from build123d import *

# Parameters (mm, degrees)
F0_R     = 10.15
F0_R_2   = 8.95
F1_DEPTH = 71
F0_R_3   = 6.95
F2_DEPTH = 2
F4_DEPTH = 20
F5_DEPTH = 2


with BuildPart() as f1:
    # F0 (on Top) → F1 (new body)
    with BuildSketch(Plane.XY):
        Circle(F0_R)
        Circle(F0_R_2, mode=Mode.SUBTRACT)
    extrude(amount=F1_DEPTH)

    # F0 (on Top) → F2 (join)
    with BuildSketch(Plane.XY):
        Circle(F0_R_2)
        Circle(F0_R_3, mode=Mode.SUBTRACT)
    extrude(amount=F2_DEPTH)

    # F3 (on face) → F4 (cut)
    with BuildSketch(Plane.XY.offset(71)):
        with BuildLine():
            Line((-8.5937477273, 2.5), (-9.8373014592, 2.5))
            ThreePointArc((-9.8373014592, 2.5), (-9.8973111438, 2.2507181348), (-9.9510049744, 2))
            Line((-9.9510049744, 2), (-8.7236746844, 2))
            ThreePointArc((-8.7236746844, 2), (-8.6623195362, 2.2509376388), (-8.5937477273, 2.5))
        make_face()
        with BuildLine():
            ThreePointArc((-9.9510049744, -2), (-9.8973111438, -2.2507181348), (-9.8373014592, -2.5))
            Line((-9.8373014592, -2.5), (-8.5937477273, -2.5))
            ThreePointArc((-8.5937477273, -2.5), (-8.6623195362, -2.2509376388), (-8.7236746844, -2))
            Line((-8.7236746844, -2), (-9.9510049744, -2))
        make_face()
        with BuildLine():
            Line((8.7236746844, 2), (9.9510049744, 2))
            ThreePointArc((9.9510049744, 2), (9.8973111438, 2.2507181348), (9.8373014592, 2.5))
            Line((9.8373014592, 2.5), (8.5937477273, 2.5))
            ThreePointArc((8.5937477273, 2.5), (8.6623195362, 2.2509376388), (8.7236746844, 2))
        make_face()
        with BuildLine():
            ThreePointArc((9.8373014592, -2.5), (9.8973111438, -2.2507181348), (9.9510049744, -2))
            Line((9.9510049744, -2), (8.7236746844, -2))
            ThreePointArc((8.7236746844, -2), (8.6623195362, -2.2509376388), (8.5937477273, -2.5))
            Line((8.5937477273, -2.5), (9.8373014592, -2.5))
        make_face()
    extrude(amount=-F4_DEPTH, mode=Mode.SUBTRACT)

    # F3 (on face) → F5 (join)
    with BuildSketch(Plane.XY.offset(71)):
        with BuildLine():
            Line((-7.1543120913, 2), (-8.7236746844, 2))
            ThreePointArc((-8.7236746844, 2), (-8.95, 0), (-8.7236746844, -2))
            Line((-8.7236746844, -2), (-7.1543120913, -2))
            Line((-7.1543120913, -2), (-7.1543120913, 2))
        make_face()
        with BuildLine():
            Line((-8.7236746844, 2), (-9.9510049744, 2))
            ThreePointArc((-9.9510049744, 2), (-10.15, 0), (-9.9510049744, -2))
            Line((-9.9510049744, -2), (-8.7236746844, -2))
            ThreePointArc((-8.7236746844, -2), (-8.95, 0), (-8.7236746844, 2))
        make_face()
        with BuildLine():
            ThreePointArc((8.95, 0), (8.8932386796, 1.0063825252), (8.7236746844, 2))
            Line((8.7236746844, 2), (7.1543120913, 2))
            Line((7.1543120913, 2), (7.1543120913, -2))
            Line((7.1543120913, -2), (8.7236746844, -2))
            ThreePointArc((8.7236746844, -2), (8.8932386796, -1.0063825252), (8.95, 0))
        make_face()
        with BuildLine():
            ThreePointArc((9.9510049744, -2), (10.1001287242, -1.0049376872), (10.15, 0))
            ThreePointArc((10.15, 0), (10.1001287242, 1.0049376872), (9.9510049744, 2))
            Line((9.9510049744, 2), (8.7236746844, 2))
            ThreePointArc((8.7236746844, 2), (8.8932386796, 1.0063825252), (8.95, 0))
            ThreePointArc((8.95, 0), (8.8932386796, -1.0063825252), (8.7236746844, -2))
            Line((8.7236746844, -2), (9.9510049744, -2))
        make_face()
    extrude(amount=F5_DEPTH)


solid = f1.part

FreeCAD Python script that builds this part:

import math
import FreeCAD as App
import Part
import Sketcher

V = App.Vector
Q = App.Units.Quantity

doc = App.newDocument("Part")
params = doc.addObject("Spreadsheet::Sheet", "Params")
for row, (alias, value) in enumerate([
    ("sketch1_diameter", "20.3 mm"),
    ("sketch1_diameter2", "17.9 mm"),
    ("pad1_length", "71 mm"),
    ("sketch2_diameter", "17.9 mm"),
    ("sketch2_diameter2", "13.9 mm"),
    ("pad2_length", "2 mm"),
    ("sketch3_radius", "10.15 mm"),
    ("sketch3_radius2", "8.95 mm"),
    ("pocket1_length", "20 mm"),
    ("sketch4_height", "4 mm"),
    ("sketch4_radius", "10.15 mm"),
    ("pad3_length", "2 mm"),
], start=1):
    params.set(f"A{row}", alias)
    params.set(f"B{row}", "=" + value)
    params.setAlias(f"B{row}", alias)

body = doc.addObject("PartDesign::Body", "Body")

sketch1 = body.newObject("Sketcher::SketchObject", "Sketch")
sketch1.AttachmentSupport = (doc.getObject("XY_Plane"), [""])
sketch1.MapMode = "FlatFace"
sketch1.addGeometry([
    Part.Circle(V(0, 0, 0), V(0, 0, 1), 10),
    Part.Circle(V(0, 0, 0), V(0, 0, 1), 9),
], False)
sketch1.addConstraint([
    Sketcher.Constraint("Coincident", 0, 3, -1, 1),
    Sketcher.Constraint("Coincident", 1, 3, -1, 1),
    Sketcher.Constraint("Diameter", 0, Q("20.3 mm")),
    Sketcher.Constraint("Diameter", 1, Q("17.9 mm")),
])
sketch1.setExpression("Constraints[2]", "Params.sketch1_diameter")
sketch1.setExpression("Constraints[3]", "Params.sketch1_diameter2")
pad1 = body.newObject("PartDesign::Pad", "Pad")
pad1.Profile = sketch1
pad1.setExpression("Length", "Params.pad1_length")

sketch2 = body.newObject("Sketcher::SketchObject", "Sketch001")
sketch2.AttachmentSupport = (doc.getObject("XY_Plane"), [""])
sketch2.MapMode = "FlatFace"
sketch2.addGeometry([
    Part.Circle(V(0, 0, 0), V(0, 0, 1), 9),
    Part.Circle(V(0, 0, 0), V(0, 0, 1), 7),
], False)
sketch2.addConstraint([
    Sketcher.Constraint("Coincident", 0, 3, -1, 1),
    Sketcher.Constraint("Coincident", 1, 3, -1, 1),
    Sketcher.Constraint("Diameter", 0, Q("17.9 mm")),
    Sketcher.Constraint("Diameter", 1, Q("13.9 mm")),
])
sketch2.setExpression("Constraints[2]", "Params.sketch2_diameter")
sketch2.setExpression("Constraints[3]", "Params.sketch2_diameter2")
pad2 = body.newObject("PartDesign::Pad", "Pad001")
pad2.Profile = sketch2
pad2.setExpression("Length", "Params.pad2_length")

sketch3 = body.newObject("Sketcher::SketchObject", "Sketch002")
sketch3.AttachmentSupport = (doc.getObject("XY_Plane"), [""])
sketch3.MapMode = "FlatFace"
sketch3.AttachmentOffset = App.Placement(V(0, 0, 71), App.Rotation())
sketch3.addGeometry([
    Part.LineSegment(V(-8.6, 2.5, 0), V(-9.8, 2.5, 0)),
    Part.ArcOfCircle(Part.Circle(V(0, 0, 0), V(0, 0, 1), 10.2), math.radians(165.74), math.radians(168.64)),
    Part.LineSegment(V(-10, 2, 0), V(-8.7, 2, 0)),
    Part.ArcOfCircle(Part.Circle(V(0, 0, 0), V(0, 0, 1), 8.9), math.radians(163.78), math.radians(167.09)),
    Part.ArcOfCircle(Part.Circle(V(0, 0, 0), V(0, 0, 1), 10.2), math.radians(-168.64), math.radians(-165.74)),
    Part.LineSegment(V(-9.8, -2.5, 0), V(-8.6, -2.5, 0)),
    Part.ArcOfCircle(Part.Circle(V(0, 0, 0), V(0, 0, 1), 8.9), math.radians(-167.09), math.radians(-163.78)),
    Part.LineSegment(V(-8.7, -2, 0), V(-10, -2, 0)),
    Part.LineSegment(V(8.7, 2, 0), V(10, 2, 0)),
    Part.ArcOfCircle(Part.Circle(V(0, 0, 0), V(0, 0, 1), 10.2), math.radians(11.36), math.radians(14.26)),
    Part.LineSegment(V(9.8, 2.5, 0), V(8.6, 2.5, 0)),
    Part.ArcOfCircle(Part.Circle(V(0, 0, 0), V(0, 0, 1), 8.9), math.radians(12.91), math.radians(16.22)),
    Part.ArcOfCircle(Part.Circle(V(0, 0, 0), V(0, 0, 1), 10.2), math.radians(-14.26), math.radians(-11.36)),
    Part.LineSegment(V(10, -2, 0), V(8.7, -2, 0)),
    Part.ArcOfCircle(Part.Circle(V(0, 0, 0), V(0, 0, 1), 8.9), math.radians(-16.22), math.radians(-12.91)),
    Part.LineSegment(V(8.6, -2.5, 0), V(9.8, -2.5, 0)),
], False)
sketch3.addConstraint([
    Sketcher.Constraint("Coincident", 0, 2, 1, 1),
    Sketcher.Constraint("Coincident", 1, 2, 2, 1),
    Sketcher.Constraint("Coincident", 2, 2, 3, 2),
    Sketcher.Constraint("Coincident", 3, 1, 0, 1),
    Sketcher.Constraint("Coincident", 4, 2, 5, 1),
    Sketcher.Constraint("Coincident", 5, 2, 6, 2),
    Sketcher.Constraint("Coincident", 6, 1, 7, 1),
    Sketcher.Constraint("Coincident", 7, 2, 4, 1),
    Sketcher.Constraint("Coincident", 8, 2, 9, 1),
    Sketcher.Constraint("Coincident", 9, 2, 10, 1),
    Sketcher.Constraint("Coincident", 10, 2, 11, 2),
    Sketcher.Constraint("Coincident", 11, 1, 8, 1),
    Sketcher.Constraint("Coincident", 12, 2, 13, 1),
    Sketcher.Constraint("Coincident", 13, 2, 14, 2),
    Sketcher.Constraint("Coincident", 14, 1, 15, 1),
    Sketcher.Constraint("Coincident", 15, 2, 12, 1),
    Sketcher.Constraint("Horizontal", 0),
    Sketcher.Constraint("Horizontal", 2),
    Sketcher.Constraint("Horizontal", 5),
    Sketcher.Constraint("Horizontal", 7),
    Sketcher.Constraint("Horizontal", 8),
    Sketcher.Constraint("Horizontal", 10),
    Sketcher.Constraint("Horizontal", 13),
    Sketcher.Constraint("Horizontal", 15),
    Sketcher.Constraint("Coincident", 1, 3, -1, 1),
    Sketcher.Constraint("Coincident", 3, 3, -1, 1),
    Sketcher.Constraint("Coincident", 4, 3, -1, 1),
    Sketcher.Constraint("Coincident", 6, 3, -1, 1),
    Sketcher.Constraint("Coincident", 9, 3, -1, 1),
    Sketcher.Constraint("Coincident", 11, 3, -1, 1),
    Sketcher.Constraint("Coincident", 12, 3, -1, 1),
    Sketcher.Constraint("Coincident", 14, 3, -1, 1),
    Sketcher.Constraint("Equal", 1, 4),
    Sketcher.Constraint("Equal", 3, 6),
    Sketcher.Constraint("Equal", 4, 9),
    Sketcher.Constraint("Equal", 6, 11),
    Sketcher.Constraint("Equal", 9, 12),
    Sketcher.Constraint("Equal", 11, 14),
    Sketcher.Constraint("Horizontal", 2, 2, 8, 2),
    Sketcher.Constraint("Horizontal", 3, 1, 9, 2),
    Sketcher.Constraint("Horizontal", 7, 2, 12, 2),
    Sketcher.Constraint("Horizontal", 5, 2, 14, 1),
    Sketcher.Constraint("Vertical", 0, 2, 4, 2),
    Sketcher.Constraint("Vertical", 2, 2, 6, 1),
    Sketcher.Constraint("Radius", 1, Q("10.15 mm")),
    Sketcher.Constraint("Radius", 3, Q("8.95 mm")),
    Sketcher.Constraint("DistanceY", -1, 1, 1, 2, Q("2 mm")),
    Sketcher.Constraint("DistanceY", 4, 2, 0, 2, Q("5 mm")),
])
sketch3.setExpression("Constraints[44]", "Params.sketch3_radius")
sketch3.setExpression("Constraints[45]", "Params.sketch3_radius2")
pocket1 = body.newObject("PartDesign::Pocket", "Pocket")
pocket1.Profile = sketch3
pocket1.setExpression("Length", "Params.pocket1_length")

sketch4 = body.newObject("Sketcher::SketchObject", "Sketch003")
sketch4.AttachmentSupport = (doc.getObject("XY_Plane"), [""])
sketch4.MapMode = "FlatFace"
sketch4.AttachmentOffset = App.Placement(V(0, 0, 71), App.Rotation())
sketch4.addGeometry([
    Part.LineSegment(V(-7.2, 2, 0), V(-10, 2, 0)),
    Part.ArcOfCircle(Part.Circle(V(0, 0, 0), V(0, 0, 1), 10.2), math.radians(169), math.radians(191)),
    Part.LineSegment(V(-10, -2, 0), V(-7.2, -2, 0)),
    Part.LineSegment(V(-7.2, -2, 0), V(-7.2, 2, 0)),
    Part.LineSegment(V(7.2, 2, 0), V(7.2, -2, 0)),
    Part.LineSegment(V(7.2, -2, 0), V(10, -2, 0)),
    Part.ArcOfCircle(Part.Circle(V(0, 0, 0), V(0, 0, 1), 10.1), math.radians(-11.36), math.radians(0)),
    Part.ArcOfCircle(Part.Circle(V(0, 0, 0), V(0, 0, 1), 10.1), math.radians(0), math.radians(11.36)),
    Part.LineSegment(V(10, 2, 0), V(7.2, 2, 0)),
], False)
sketch4.addConstraint([
    Sketcher.Constraint("Coincident", 0, 2, 1, 1),
    Sketcher.Constraint("Coincident", 1, 2, 2, 1),
    Sketcher.Constraint("Coincident", 2, 2, 3, 1),
    Sketcher.Constraint("Coincident", 3, 2, 0, 1),
    Sketcher.Constraint("Coincident", 4, 2, 5, 1),
    Sketcher.Constraint("Coincident", 5, 2, 6, 1),
    Sketcher.Constraint("Tangent", 6, 2, 7, 1),
    Sketcher.Constraint("Coincident", 7, 2, 8, 1),
    Sketcher.Constraint("Coincident", 8, 2, 4, 1),
    Sketcher.Constraint("Horizontal", 0),
    Sketcher.Constraint("Horizontal", 2),
    Sketcher.Constraint("Vertical", 3),
    Sketcher.Constraint("Vertical", 4),
    Sketcher.Constraint("Horizontal", 5),
    Sketcher.Constraint("Horizontal", 8),
    Sketcher.Constraint("Coincident", 1, 3, -1, 1),
    Sketcher.Constraint("Coincident", 6, 3, -1, 1),
    Sketcher.Constraint("Equal", 1, 6),
    Sketcher.Constraint("Equal", 6, 7),
    Sketcher.Constraint("Symmetric", 3, 2, 4, 2, -1, 1),
    Sketcher.Constraint("PointOnObject", 6, 2, -1),
    Sketcher.Constraint("Horizontal", 2, 2, 4, 2),
    Sketcher.Constraint("Horizontal", 3, 2, 7, 2),
    Sketcher.Constraint("DistanceY", 3, 1, 3, 2, Q("4 mm")),
    Sketcher.Constraint("Radius", 1, Q("10.15 mm")),
    Sketcher.Constraint("DistanceX", 0, 2, 0, 1, Q("2.796693 mm")),
])
sketch4.setExpression("Constraints[23]", "Params.sketch4_height")
sketch4.setExpression("Constraints[24]", "Params.sketch4_radius")
pad3 = body.newObject("PartDesign::Pad", "Pad002")
pad3.Profile = sketch4
pad3.setExpression("Length", "Params.pad3_length")

doc.recompute()
